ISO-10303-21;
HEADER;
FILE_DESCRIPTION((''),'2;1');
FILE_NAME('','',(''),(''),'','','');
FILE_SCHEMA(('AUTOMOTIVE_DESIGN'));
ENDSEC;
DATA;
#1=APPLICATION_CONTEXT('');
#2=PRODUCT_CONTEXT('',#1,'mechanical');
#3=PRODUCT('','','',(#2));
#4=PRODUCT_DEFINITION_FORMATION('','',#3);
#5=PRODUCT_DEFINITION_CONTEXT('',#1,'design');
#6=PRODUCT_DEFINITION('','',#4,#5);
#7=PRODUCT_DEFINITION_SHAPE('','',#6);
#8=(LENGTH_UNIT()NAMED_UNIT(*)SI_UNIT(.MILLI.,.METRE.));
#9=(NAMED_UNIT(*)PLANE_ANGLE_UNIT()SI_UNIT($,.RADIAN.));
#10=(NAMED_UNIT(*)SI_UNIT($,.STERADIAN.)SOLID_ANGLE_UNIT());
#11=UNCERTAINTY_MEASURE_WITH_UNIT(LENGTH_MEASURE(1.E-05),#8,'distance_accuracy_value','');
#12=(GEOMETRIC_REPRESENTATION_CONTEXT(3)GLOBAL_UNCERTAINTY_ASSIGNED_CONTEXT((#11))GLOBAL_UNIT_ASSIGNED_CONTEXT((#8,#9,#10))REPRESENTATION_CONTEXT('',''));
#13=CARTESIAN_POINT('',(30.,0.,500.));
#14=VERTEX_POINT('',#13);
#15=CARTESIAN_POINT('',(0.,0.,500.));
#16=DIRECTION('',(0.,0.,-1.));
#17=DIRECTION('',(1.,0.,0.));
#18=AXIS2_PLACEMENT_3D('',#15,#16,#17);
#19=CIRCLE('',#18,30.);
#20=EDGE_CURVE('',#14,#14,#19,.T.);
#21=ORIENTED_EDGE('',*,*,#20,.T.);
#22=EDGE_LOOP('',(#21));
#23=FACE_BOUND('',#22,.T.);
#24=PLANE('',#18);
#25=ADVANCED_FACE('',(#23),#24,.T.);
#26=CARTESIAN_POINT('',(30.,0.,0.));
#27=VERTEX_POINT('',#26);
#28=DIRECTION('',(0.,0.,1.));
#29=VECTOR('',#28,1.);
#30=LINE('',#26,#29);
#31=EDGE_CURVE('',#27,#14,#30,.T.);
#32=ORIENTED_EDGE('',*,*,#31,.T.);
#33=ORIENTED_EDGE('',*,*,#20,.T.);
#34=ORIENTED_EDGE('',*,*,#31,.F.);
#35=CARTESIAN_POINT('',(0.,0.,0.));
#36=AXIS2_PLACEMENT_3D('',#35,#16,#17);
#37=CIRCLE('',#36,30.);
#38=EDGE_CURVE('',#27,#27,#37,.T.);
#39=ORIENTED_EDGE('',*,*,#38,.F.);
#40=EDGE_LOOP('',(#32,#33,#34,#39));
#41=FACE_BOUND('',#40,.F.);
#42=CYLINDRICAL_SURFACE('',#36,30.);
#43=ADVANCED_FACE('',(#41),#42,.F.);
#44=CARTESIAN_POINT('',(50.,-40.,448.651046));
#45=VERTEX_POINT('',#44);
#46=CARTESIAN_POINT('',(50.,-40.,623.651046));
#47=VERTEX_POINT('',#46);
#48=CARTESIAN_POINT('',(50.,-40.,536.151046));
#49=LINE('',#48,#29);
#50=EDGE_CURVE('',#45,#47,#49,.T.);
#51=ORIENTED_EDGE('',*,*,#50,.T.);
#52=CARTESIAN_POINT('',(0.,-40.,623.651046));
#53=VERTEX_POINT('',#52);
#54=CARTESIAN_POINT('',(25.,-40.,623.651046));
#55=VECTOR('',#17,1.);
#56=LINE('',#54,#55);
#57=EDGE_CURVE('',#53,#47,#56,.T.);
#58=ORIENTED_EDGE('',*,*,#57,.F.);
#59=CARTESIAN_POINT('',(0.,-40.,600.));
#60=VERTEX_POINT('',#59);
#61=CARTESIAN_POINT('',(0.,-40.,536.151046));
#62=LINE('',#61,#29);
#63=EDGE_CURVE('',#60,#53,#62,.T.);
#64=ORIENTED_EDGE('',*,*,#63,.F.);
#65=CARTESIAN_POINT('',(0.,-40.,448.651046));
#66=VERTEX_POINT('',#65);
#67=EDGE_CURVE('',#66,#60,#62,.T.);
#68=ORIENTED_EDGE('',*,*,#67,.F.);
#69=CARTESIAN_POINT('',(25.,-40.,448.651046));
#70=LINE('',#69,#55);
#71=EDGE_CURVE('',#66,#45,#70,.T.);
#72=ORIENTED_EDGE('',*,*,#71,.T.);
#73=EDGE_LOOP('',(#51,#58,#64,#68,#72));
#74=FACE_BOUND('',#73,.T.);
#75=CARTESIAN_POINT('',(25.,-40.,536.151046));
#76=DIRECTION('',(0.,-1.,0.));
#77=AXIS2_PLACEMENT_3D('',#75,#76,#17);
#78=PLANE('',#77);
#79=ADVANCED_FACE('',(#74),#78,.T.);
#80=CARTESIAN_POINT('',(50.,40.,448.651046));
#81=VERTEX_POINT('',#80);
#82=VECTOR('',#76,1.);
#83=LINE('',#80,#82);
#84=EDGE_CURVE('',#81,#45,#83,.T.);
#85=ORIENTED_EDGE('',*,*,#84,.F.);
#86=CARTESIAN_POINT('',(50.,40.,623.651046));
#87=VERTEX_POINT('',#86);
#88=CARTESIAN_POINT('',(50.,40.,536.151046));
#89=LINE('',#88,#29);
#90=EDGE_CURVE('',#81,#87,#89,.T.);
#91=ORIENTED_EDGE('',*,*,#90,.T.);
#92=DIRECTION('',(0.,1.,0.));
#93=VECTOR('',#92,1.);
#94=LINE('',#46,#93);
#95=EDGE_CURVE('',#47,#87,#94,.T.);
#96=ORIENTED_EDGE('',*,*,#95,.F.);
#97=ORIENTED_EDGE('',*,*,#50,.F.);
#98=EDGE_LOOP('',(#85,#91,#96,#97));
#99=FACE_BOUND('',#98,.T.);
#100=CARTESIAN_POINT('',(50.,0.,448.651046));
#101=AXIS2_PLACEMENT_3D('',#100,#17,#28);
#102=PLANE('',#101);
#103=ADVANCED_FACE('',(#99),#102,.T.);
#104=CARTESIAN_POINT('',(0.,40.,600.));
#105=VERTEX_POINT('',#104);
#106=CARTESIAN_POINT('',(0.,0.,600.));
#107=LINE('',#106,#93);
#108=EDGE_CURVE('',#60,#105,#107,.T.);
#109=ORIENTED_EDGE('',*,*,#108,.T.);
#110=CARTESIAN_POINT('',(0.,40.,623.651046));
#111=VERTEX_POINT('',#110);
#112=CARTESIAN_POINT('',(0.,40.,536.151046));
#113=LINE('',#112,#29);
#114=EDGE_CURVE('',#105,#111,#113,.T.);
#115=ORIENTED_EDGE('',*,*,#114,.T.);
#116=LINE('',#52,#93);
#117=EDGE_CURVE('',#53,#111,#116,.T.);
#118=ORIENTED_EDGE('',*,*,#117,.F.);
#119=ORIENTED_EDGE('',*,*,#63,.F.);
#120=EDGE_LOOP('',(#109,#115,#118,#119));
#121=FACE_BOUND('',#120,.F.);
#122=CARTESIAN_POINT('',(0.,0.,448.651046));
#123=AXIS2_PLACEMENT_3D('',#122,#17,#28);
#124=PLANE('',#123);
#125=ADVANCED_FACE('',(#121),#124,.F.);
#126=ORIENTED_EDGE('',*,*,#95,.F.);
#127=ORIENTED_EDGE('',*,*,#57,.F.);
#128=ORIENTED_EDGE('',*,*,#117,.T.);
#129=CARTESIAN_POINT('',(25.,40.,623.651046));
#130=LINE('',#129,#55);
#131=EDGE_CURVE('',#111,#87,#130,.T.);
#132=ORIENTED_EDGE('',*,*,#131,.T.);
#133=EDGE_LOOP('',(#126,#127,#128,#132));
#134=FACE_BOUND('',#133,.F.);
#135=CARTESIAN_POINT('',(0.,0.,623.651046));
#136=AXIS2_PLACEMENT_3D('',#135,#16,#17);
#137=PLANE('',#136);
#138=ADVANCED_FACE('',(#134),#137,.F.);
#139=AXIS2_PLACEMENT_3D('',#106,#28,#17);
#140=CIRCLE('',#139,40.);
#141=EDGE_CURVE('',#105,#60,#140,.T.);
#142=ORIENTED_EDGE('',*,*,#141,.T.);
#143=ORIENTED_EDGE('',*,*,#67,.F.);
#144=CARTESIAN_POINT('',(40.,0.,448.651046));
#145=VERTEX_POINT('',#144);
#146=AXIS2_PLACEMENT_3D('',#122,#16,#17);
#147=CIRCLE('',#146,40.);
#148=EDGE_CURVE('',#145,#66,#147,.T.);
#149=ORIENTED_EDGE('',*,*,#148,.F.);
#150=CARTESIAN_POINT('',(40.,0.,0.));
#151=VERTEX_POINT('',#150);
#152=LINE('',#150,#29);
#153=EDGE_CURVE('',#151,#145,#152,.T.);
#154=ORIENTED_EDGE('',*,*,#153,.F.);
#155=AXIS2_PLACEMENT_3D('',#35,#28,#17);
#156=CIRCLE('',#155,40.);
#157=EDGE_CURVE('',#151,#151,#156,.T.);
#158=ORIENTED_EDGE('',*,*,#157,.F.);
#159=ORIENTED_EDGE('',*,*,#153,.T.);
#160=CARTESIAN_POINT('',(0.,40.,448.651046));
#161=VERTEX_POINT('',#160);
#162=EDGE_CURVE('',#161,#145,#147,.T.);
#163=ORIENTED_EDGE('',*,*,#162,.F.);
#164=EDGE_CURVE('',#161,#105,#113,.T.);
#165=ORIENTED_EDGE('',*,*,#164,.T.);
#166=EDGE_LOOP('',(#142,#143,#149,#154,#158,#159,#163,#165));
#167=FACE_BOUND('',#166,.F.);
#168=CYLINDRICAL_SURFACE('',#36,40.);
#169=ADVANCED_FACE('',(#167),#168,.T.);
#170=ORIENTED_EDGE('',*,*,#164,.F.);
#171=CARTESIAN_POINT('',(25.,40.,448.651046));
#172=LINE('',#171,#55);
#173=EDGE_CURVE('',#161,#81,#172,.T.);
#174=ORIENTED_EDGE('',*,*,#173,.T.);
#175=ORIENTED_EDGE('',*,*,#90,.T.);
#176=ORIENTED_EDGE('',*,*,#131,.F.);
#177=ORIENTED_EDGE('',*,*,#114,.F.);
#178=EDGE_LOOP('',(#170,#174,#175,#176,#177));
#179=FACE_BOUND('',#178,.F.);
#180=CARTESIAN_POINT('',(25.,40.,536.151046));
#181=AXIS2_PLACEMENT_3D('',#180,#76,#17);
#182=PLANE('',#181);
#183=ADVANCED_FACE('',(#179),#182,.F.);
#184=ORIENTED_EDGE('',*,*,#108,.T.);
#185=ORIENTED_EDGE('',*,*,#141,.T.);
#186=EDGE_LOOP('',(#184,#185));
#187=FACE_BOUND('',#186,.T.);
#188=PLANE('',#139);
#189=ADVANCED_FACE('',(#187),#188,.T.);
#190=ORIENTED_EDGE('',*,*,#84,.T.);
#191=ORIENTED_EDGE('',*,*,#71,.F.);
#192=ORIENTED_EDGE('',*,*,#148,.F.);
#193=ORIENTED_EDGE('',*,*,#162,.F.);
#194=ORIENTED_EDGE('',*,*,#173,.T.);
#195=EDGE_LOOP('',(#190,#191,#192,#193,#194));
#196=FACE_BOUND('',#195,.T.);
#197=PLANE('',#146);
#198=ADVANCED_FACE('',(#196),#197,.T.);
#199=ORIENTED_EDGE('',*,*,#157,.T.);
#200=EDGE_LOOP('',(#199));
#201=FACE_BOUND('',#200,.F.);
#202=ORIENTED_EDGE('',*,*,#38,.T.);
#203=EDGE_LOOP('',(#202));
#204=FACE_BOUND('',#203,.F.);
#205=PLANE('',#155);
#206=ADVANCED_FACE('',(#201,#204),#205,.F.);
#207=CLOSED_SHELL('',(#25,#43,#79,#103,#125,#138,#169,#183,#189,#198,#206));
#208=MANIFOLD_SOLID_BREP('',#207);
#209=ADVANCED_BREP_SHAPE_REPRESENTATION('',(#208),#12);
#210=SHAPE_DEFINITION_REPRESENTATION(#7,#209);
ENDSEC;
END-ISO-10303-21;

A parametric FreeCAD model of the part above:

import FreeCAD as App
import Part
import Sketcher
from FreeCAD import Vector


def add_polygon(sketch, points):
    """Adds a closed chain of lines whose ends are joined by coincident constraints."""
    first, n = sketch.GeometryCount, len(points)
    for a, b in zip(points, points[1:] + points[:1]):
        sketch.addGeometry(Part.LineSegment(App.Vector(*a, 0), App.Vector(*b, 0)), False)
    for i in range(n):
        sketch.addConstraint(Sketcher.Constraint("Coincident", first + i, 2, first + (i + 1) % n, 1))

doc = App.newDocument("Part")
body = doc.addObject("PartDesign::Body", "Body")

sketch1 = body.newObject("Sketcher::SketchObject", "Sketch")
sketch1.AttachmentSupport = (doc.getObject("XY_Plane"), [""])
sketch1.MapMode = "FlatFace"
sketch1.addGeometry(Part.Circle(Vector(0, 0, 0), Vector(0, 0, 1), 40), False)
sketch1.addConstraint(Sketcher.Constraint("Coincident", 0, 3, -1, 1))
sketch1.addConstraint(Sketcher.Constraint("Diameter", 0, 80.0))
pad1 = body.newObject("PartDesign::Pad", "Pad")
pad1.Profile = sketch1
pad1.Length = 600

sketch2 = body.newObject("Sketcher::SketchObject", "Sketch001")
sketch2.AttachmentSupport = (doc.getObject("XZ_Plane"), [""])
sketch2.MapMode = "FlatFace"
add_polygon(sketch2, [(0, 624), (0, 449), (50, 449), (50, 624)])
sketch2.addConstraint(Sketcher.Constraint("Vertical", 0))
sketch2.addConstraint(Sketcher.Constraint("Horizontal", 1))
sketch2.addConstraint(Sketcher.Constraint("Vertical", 2))
sketch2.addConstraint(Sketcher.Constraint("Horizontal", 3))
sketch2.addConstraint(Sketcher.Constraint("PointOnObject", 0, 2, -2))
sketch2.addConstraint(Sketcher.Constraint("DistanceX", 1, 1, 1, 2, 50.0))
sketch2.addConstraint(Sketcher.Constraint("DistanceY", 0, 2, 0, 1, 175.0))
sketch2.addConstraint(Sketcher.Constraint("DistanceY", -1, 1, 0, 2, 448.651046))
pad2 = body.newObject("PartDesign::Pad", "Pad001")
pad2.Profile = sketch2
pad2.Length = 80
pad2.Midplane = True

sketch3 = body.newObject("Sketcher::SketchObject", "Sketch002")
sketch3.AttachmentSupport = (doc.getObject("XY_Plane"), [""])
sketch3.MapMode = "FlatFace"
sketch3.addGeometry(Part.Circle(Vector(0, 0, 0), Vector(0, 0, 1), 30), False)
sketch3.addConstraint(Sketcher.Constraint("Coincident", 0, 3, -1, 1))
sketch3.addConstraint(Sketcher.Constraint("Diameter", 0, 60.0))
pocket1 = body.newObject("PartDesign::Pocket", "Pocket")
pocket1.Profile = sketch3
pocket1.Length = 500
pocket1.Reversed = True

doc.recompute()
